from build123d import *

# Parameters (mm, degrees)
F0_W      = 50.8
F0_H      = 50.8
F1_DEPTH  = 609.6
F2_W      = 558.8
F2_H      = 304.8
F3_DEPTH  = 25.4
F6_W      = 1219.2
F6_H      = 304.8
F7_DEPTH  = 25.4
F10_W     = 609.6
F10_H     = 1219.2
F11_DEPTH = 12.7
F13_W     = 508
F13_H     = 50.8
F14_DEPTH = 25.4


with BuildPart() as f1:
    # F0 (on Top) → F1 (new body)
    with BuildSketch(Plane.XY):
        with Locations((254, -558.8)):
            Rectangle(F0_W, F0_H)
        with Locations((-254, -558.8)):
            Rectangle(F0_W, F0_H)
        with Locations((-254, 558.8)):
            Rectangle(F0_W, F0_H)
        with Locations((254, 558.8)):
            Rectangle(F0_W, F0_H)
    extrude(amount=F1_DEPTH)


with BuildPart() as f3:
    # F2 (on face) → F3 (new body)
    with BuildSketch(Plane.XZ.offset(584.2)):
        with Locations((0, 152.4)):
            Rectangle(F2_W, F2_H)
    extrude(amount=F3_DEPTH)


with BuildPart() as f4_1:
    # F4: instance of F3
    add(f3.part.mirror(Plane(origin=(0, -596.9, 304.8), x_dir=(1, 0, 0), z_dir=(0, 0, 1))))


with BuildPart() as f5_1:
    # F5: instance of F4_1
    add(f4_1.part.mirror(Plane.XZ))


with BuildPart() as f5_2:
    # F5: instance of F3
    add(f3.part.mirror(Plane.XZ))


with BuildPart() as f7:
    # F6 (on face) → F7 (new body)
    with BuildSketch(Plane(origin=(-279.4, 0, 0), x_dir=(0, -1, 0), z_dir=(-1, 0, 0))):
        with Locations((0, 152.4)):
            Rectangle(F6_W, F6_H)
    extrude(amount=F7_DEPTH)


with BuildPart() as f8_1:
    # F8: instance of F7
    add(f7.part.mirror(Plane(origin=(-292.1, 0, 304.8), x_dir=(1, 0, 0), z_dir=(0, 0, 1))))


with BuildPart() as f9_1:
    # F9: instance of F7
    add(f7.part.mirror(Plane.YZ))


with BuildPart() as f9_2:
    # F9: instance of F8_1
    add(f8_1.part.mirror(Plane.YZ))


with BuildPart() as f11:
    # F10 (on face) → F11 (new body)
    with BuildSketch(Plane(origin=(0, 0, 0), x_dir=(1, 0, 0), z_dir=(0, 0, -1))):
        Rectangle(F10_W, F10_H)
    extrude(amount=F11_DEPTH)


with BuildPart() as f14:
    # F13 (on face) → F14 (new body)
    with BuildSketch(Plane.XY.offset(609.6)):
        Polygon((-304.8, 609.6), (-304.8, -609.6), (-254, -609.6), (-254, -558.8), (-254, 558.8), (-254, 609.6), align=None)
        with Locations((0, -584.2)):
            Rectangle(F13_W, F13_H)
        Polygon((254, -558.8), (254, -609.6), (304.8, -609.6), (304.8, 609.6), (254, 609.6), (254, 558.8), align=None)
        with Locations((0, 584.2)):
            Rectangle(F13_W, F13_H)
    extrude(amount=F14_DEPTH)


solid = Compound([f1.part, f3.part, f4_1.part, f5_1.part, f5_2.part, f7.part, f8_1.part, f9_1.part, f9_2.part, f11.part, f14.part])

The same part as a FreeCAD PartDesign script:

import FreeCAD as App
import Part
import Sketcher
from FreeCAD import Vector
Q = App.Units.Quantity

doc = App.newDocument("Part")
body = doc.addObject("PartDesign::Body", "Body")
body.AllowCompound = True

sketch1 = doc.addObject("Sketcher::SketchObject", "Sketch")
body.addObject(sketch1)
sketch1.AttachmentSupport = (doc.XY_Plane, [""])
sketch1.MapMode = "FlatFace"
sketch1.addGeometry([
    Part.LineSegment(Vector(229, -533, 0), Vector(229, -584, 0)),
    Part.LineSegment(Vector(229, -584, 0), Vector(279, -584, 0)),
    Part.LineSegment(Vector(279, -584, 0), Vector(279, -533, 0)),
    Part.LineSegment(Vector(279, -533, 0), Vector(229, -533, 0)),
    Part.LineSegment(Vector(-279, -533, 0), Vector(-279, -584, 0)),
    Part.LineSegment(Vector(-279, -584, 0), Vector(-229, -584, 0)),
    Part.LineSegment(Vector(-229, -584, 0), Vector(-229, -533, 0)),
    Part.LineSegment(Vector(-229, -533, 0), Vector(-279, -533, 0)),
    Part.LineSegment(Vector(-279, 584, 0), Vector(-279, 533, 0)),
    Part.LineSegment(Vector(-279, 533, 0), Vector(-229, 533, 0)),
    Part.LineSegment(Vector(-229, 533, 0), Vector(-229, 584, 0)),
    Part.LineSegment(Vector(-229, 584, 0), Vector(-279, 584, 0)),
    Part.LineSegment(Vector(229, 584, 0), Vector(229, 533, 0)),
    Part.LineSegment(Vector(229, 533, 0), Vector(279, 533, 0)),
    Part.LineSegment(Vector(279, 533, 0), Vector(279, 584, 0)),
    Part.LineSegment(Vector(279, 584, 0), Vector(229, 584, 0)),
], False)
sketch1.addConstraint([
    Sketcher.Constraint("Coincident", 0, 2, 1, 1),
    Sketcher.Constraint("Coincident", 1, 2, 2, 1),
    Sketcher.Constraint("Coincident", 2, 2, 3, 1),
    Sketcher.Constraint("Coincident", 3, 2, 0, 1),
    Sketcher.Constraint("Coincident", 4, 2, 5, 1),
    Sketcher.Constraint("Coincident", 5, 2, 6, 1),
    Sketcher.Constraint("Coincident", 6, 2, 7, 1),
    Sketcher.Constraint("Coincident", 7, 2, 4, 1),
    Sketcher.Constraint("Coincident", 8, 2, 9, 1),
    Sketcher.Constraint("Coincident", 9, 2, 10, 1),
    Sketcher.Constraint("Coincident", 10, 2, 11, 1),
    Sketcher.Constraint("Coincident", 11, 2, 8, 1),
    Sketcher.Constraint("Coincident", 12, 2, 13, 1),
    Sketcher.Constraint("Coincident", 13, 2, 14, 1),
    Sketcher.Constraint("Coincident", 14, 2, 15, 1),
    Sketcher.Constraint("Coincident", 15, 2, 12, 1),
    Sketcher.Constraint("Vertical", 0),
    Sketcher.Constraint("Horizontal", 1),
    Sketcher.Constraint("Vertical", 2),
    Sketcher.Constraint("Horizontal", 3),
    Sketcher.Constraint("Vertical", 4),
    Sketcher.Constraint("Horizontal", 5),
    Sketcher.Constraint("Vertical", 6),
    Sketcher.Constraint("Horizontal", 7),
    Sketcher.Constraint("Vertical", 8),
    Sketcher.Constraint("Horizontal", 9),
    Sketcher.Constraint("Vertical", 10),
    Sketcher.Constraint("Horizontal", 11),
    Sketcher.Constraint("Vertical", 12),
    Sketcher.Constraint("Horizontal", 13),
    Sketcher.Constraint("Vertical", 14),
    Sketcher.Constraint("Horizontal", 15),
    Sketcher.Constraint("Symmetric", 2, 2, 8, 2, -1, 1),
    Sketcher.Constraint("Symmetric", 0, 2, 10, 2, -1, 1),
    Sketcher.Constraint("Symmetric", 6, 2, 12, 2, -1, 1),
    Sketcher.Constraint("Symmetric", 4, 2, 14, 2, -1, 1),
    Sketcher.Constraint("Symmetric", 1, 2, 4, 2, -2),
    Sketcher.Constraint("Symmetric", 3, 2, 6, 2, -2),
    Sketcher.Constraint("Equal", 15, 0),
    Sketcher.Constraint("DistanceX", 1, 1, 1, 2, Q("2 in")),
    Sketcher.Constraint("DistanceX", -1, 1, 0, 2, Q("9 in")),
    Sketcher.Constraint("DistanceY", 0, 2, -1, 1, Q("23 in")),
])
pad1 = doc.addObject("PartDesign::Pad", "Pad")
body.addObject(pad1)
pad1.Profile = sketch1
pad1.Length = Q("24 in")
body2 = doc.addObject("PartDesign::Body", "Body001")

sketch2 = doc.addObject("Sketcher::SketchObject", "Sketch001")
body2.addObject(sketch2)
sketch2.AttachmentSupport = (doc.getObject("XZ_Plane001"), [""])
sketch2.MapMode = "FlatFace"
sketch2.AttachmentOffset = App.Placement(Vector(0, 0, 23 * 25.4), App.Rotation())
sketch2.addGeometry([
    Part.LineSegment(Vector(-279, 305, 0), Vector(-279, 0, 0)),
    Part.LineSegment(Vector(-279, 0, 0), Vector(279, 0, 0)),
    Part.LineSegment(Vector(279, 0, 0), Vector(279, 305, 0)),
    Part.LineSegment(Vector(279, 305, 0), Vector(-279, 305, 0)),
], False)
sketch2.addConstraint([
    Sketcher.Constraint("Coincident", 0, 2, 1, 1),
    Sketcher.Constraint("Coincident", 1, 2, 2, 1),
    Sketcher.Constraint("Coincident", 2, 2, 3, 1),
    Sketcher.Constraint("Coincident", 3, 2, 0, 1),
    Sketcher.Constraint("Vertical", 0),
    Sketcher.Constraint("Horizontal", 1),
    Sketcher.Constraint("Vertical", 2),
    Sketcher.Constraint("Horizontal", 3),
    Sketcher.Constraint("Symmetric", 0, 2, 1, 2, -1, 1),
    Sketcher.Constraint("DistanceX", 1, 1, 1, 2, Q("22 in")),
    Sketcher.Constraint("DistanceY", 0, 2, 0, 1, Q("12 in")),
])
pad2 = doc.addObject("PartDesign::Pad", "Pad001")
body2.addObject(pad2)
pad2.Profile = sketch2
pad2.Length = Q("1 in")
body3 = doc.addObject("PartDesign::Body", "Body002")
doc.recompute()

mirroring = doc.addObject("Part::Mirroring", "Mirroring")
mirroring.Source = body2
mirroring.Base = Vector(0, -596.9, 304.8)
mirroring.Normal = Vector(0, 0, 1)
body3.BaseFeature = mirroring
doc.recompute()
body4 = doc.addObject("PartDesign::Body", "Body003")
doc.recompute()

mirroring2 = doc.addObject("Part::Mirroring", "Mirroring001")
mirroring2.Source = body3
mirroring2.Base = Vector(0, 0, 0)
mirroring2.Normal = Vector(0, -1, 0)
body4.BaseFeature = mirroring2
doc.recompute()
body5 = doc.addObject("PartDesign::Body", "Body004")
doc.recompute()

mirroring3 = doc.addObject("Part::Mirroring", "Mirroring002")
mirroring3.Source = body2
mirroring3.Base = Vector(0, 0, 0)
mirroring3.Normal = Vector(0, -1, 0)
body5.BaseFeature = mirroring3
doc.recompute()
body6 = doc.addObject("PartDesign::Body", "Body005")

sketch3 = doc.addObject("Sketcher::SketchObject", "Sketch002")
body6.addObject(sketch3)
sketch3.AttachmentSupport = (doc.getObject("YZ_Plane005"), [""])
sketch3.MapMode = "FlatFace"
sketch3.AttachmentOffset = App.Placement(Vector(0, 0, -11 * 25.4), App.Rotation())
sketch3.addGeometry([
    Part.LineSegment(Vector(610, 305, 0), Vector(610, 0, 0)),
    Part.LineSegment(Vector(610, 0, 0), Vector(-610, 0, 0)),
    Part.LineSegment(Vector(-610, 0, 0), Vector(-610, 305, 0)),
    Part.LineSegment(Vector(-610, 305, 0), Vector(610, 305, 0)),
], False)
sketch3.addConstraint([
    Sketcher.Constraint("Coincident", 0, 2, 1, 1),
    Sketcher.Constraint("Coincident", 1, 2, 2, 1),
    Sketcher.Constraint("Coincident", 2, 2, 3, 1),
    Sketcher.Constraint("Coincident", 3, 2, 0, 1),
    Sketcher.Constraint("Vertical", 0),
    Sketcher.Constraint("Horizontal", 1),
    Sketcher.Constraint("Vertical", 2),
    Sketcher.Constraint("Horizontal", 3),
    Sketcher.Constraint("Symmetric", 0, 2, 1, 2, -1, 1),
    Sketcher.Constraint("DistanceX", 1, 2, 1, 1, Q("48 in")),
    Sketcher.Constraint("DistanceY", 0, 2, 0, 1, Q("12 in")),
])
pad3 = doc.addObject("PartDesign::Pad", "Pad002")
body6.addObject(pad3)
pad3.Profile = sketch3
pad3.Length = Q("1 in")
pad3.Reversed = True
body7 = doc.addObject("PartDesign::Body", "Body006")
doc.recompute()

mirroring4 = doc.addObject("Part::Mirroring", "Mirroring003")
mirroring4.Source = body6
mirroring4.Base = Vector(-292.1, 0, 304.8)
mirroring4.Normal = Vector(0, 0, 1)
body7.BaseFeature = mirroring4
doc.recompute()
body8 = doc.addObject("PartDesign::Body", "Body007")
doc.recompute()

mirroring5 = doc.addObject("Part::Mirroring", "Mirroring004")
mirroring5.Source = body6
mirroring5.Base = Vector(0, 0, 0)
mirroring5.Normal = Vector(1, 0, 0)
body8.BaseFeature = mirroring5
doc.recompute()
body9 = doc.addObject("PartDesign::Body", "Body008")
doc.recompute()

mirroring6 = doc.addObject("Part::Mirroring", "Mirroring005")
mirroring6.Source = body7
mirroring6.Base = Vector(0, 0, 0)
mirroring6.Normal = Vector(1, 0, 0)
body9.BaseFeature = mirroring6
doc.recompute()
body10 = doc.addObject("PartDesign::Body", "Body009")

sketch4 = doc.addObject("Sketcher::SketchObject", "Sketch003")
body10.addObject(sketch4)
sketch4.AttachmentSupport = (doc.getObject("XY_Plane009"), [""])
sketch4.MapMode = "FlatFace"
sketch4.addGeometry([
    Part.LineSegment(Vector(-305, -610, 0), Vector(-305, 610, 0)),
    Part.LineSegment(Vector(-305, 610, 0), Vector(305, 610, 0)),
    Part.LineSegment(Vector(305, 610, 0), Vector(305, -610, 0)),
    Part.LineSegment(Vector(305, -610, 0), Vector(-305, -610, 0)),
], False)
sketch4.addConstraint([
    Sketcher.Constraint("Coincident", 0, 2, 1, 1),
    Sketcher.Constraint("Coincident", 1, 2, 2, 1),
    Sketcher.Constraint("Coincident", 2, 2, 3, 1),
    Sketcher.Constraint("Coincident", 3, 2, 0, 1),
    Sketcher.Constraint("Vertical", 0),
    Sketcher.Constraint("Horizontal", 1),
    Sketcher.Constraint("Vertical", 2),
    Sketcher.Constraint("Horizontal", 3),
    Sketcher.Constraint("Symmetric", 0, 2, 2, 2, -1, 1),
    Sketcher.Constraint("DistanceX", 1, 1, 1, 2, Q("24 in")),
    Sketcher.Constraint("DistanceY", 0, 1, 0, 2, Q("48 in")),
])
pad4 = doc.addObject("PartDesign::Pad", "Pad003")
body10.addObject(pad4)
pad4.Profile = sketch4
pad4.Length = Q("0.5 in")
pad4.Reversed = True
body11 = doc.addObject("PartDesign::Body", "Body010")

sketch5 = doc.addObject("Sketcher::SketchObject", "Sketch004")
body11.addObject(sketch5)
sketch5.AttachmentSupport = (doc.getObject("XY_Plane010"), [""])
sketch5.MapMode = "FlatFace"
sketch5.AttachmentOffset = App.Placement(Vector(0, 0, 24 * 25.4), App.Rotation())
sketch5.addGeometry([
    Part.LineSegment(Vector(-305, 610, 0), Vector(-305, -610, 0)),
    Part.LineSegment(Vector(-305, -610, 0), Vector(305, -610, 0)),
    Part.LineSegment(Vector(305, -610, 0), Vector(305, 610, 0)),
    Part.LineSegment(Vector(305, 610, 0), Vector(-305, 610, 0)),
    Part.LineSegment(Vector(254, 559, 0), Vector(254, -559, 0)),
    Part.LineSegment(Vector(254, -559, 0), Vector(-254, -559, 0)),
    Part.LineSegment(Vector(-254, -559, 0), Vector(-254, 559, 0)),
    Part.LineSegment(Vector(-254, 559, 0), Vector(254, 559, 0)),
], False)
sketch5.addConstraint([
    Sketcher.Constraint("Coincident", 0, 2, 1, 1),
    Sketcher.Constraint("Coincident", 1, 2, 2, 1),
    Sketcher.Constraint("Coincident", 2, 2, 3, 1),
    Sketcher.Constraint("Coincident", 3, 2, 0, 1),
    Sketcher.Constraint("Coincident", 4, 2, 5, 1),
    Sketcher.Constraint("Coincident", 5, 2, 6, 1),
    Sketcher.Constraint("Coincident", 6, 2, 7, 1),
    Sketcher.Constraint("Coincident", 7, 2, 4, 1),
    Sketcher.Constraint("Vertical", 0),
    Sketcher.Constraint("Horizontal", 1),
    Sketcher.Constraint("Vertical", 2),
    Sketcher.Constraint("Horizontal", 3),
    Sketcher.Constraint("Vertical", 4),
    Sketcher.Constraint("Horizontal", 5),
    Sketcher.Constraint("Vertical", 6),
    Sketcher.Constraint("Horizontal", 7),
    Sketcher.Constraint("Symmetric", 0, 2, 2, 2, -1, 1),
    Sketcher.Constraint("Symmetric", 4, 2, 6, 2, -1, 1),
    Sketcher.Constraint("DistanceX", 1, 1, 1, 2, Q("24 in")),
    Sketcher.Constraint("DistanceX", 5, 2, 5, 1, Q("20 in")),
    Sketcher.Constraint("DistanceY", 0, 2, 0, 1, Q("48 in")),
    Sketcher.Constraint("DistanceY", 4, 2, 4, 1, Q("44 in")),
])
pad5 = doc.addObject("PartDesign::Pad", "Pad004")
body11.addObject(pad5)
pad5.Profile = sketch5
pad5.Length = Q("1 in")
mirroring.Visibility = False
mirroring2.Visibility = False
mirroring3.Visibility = False
mirroring4.Visibility = False
mirroring5.Visibility = False
mirroring6.Visibility = False

doc.recompute()
